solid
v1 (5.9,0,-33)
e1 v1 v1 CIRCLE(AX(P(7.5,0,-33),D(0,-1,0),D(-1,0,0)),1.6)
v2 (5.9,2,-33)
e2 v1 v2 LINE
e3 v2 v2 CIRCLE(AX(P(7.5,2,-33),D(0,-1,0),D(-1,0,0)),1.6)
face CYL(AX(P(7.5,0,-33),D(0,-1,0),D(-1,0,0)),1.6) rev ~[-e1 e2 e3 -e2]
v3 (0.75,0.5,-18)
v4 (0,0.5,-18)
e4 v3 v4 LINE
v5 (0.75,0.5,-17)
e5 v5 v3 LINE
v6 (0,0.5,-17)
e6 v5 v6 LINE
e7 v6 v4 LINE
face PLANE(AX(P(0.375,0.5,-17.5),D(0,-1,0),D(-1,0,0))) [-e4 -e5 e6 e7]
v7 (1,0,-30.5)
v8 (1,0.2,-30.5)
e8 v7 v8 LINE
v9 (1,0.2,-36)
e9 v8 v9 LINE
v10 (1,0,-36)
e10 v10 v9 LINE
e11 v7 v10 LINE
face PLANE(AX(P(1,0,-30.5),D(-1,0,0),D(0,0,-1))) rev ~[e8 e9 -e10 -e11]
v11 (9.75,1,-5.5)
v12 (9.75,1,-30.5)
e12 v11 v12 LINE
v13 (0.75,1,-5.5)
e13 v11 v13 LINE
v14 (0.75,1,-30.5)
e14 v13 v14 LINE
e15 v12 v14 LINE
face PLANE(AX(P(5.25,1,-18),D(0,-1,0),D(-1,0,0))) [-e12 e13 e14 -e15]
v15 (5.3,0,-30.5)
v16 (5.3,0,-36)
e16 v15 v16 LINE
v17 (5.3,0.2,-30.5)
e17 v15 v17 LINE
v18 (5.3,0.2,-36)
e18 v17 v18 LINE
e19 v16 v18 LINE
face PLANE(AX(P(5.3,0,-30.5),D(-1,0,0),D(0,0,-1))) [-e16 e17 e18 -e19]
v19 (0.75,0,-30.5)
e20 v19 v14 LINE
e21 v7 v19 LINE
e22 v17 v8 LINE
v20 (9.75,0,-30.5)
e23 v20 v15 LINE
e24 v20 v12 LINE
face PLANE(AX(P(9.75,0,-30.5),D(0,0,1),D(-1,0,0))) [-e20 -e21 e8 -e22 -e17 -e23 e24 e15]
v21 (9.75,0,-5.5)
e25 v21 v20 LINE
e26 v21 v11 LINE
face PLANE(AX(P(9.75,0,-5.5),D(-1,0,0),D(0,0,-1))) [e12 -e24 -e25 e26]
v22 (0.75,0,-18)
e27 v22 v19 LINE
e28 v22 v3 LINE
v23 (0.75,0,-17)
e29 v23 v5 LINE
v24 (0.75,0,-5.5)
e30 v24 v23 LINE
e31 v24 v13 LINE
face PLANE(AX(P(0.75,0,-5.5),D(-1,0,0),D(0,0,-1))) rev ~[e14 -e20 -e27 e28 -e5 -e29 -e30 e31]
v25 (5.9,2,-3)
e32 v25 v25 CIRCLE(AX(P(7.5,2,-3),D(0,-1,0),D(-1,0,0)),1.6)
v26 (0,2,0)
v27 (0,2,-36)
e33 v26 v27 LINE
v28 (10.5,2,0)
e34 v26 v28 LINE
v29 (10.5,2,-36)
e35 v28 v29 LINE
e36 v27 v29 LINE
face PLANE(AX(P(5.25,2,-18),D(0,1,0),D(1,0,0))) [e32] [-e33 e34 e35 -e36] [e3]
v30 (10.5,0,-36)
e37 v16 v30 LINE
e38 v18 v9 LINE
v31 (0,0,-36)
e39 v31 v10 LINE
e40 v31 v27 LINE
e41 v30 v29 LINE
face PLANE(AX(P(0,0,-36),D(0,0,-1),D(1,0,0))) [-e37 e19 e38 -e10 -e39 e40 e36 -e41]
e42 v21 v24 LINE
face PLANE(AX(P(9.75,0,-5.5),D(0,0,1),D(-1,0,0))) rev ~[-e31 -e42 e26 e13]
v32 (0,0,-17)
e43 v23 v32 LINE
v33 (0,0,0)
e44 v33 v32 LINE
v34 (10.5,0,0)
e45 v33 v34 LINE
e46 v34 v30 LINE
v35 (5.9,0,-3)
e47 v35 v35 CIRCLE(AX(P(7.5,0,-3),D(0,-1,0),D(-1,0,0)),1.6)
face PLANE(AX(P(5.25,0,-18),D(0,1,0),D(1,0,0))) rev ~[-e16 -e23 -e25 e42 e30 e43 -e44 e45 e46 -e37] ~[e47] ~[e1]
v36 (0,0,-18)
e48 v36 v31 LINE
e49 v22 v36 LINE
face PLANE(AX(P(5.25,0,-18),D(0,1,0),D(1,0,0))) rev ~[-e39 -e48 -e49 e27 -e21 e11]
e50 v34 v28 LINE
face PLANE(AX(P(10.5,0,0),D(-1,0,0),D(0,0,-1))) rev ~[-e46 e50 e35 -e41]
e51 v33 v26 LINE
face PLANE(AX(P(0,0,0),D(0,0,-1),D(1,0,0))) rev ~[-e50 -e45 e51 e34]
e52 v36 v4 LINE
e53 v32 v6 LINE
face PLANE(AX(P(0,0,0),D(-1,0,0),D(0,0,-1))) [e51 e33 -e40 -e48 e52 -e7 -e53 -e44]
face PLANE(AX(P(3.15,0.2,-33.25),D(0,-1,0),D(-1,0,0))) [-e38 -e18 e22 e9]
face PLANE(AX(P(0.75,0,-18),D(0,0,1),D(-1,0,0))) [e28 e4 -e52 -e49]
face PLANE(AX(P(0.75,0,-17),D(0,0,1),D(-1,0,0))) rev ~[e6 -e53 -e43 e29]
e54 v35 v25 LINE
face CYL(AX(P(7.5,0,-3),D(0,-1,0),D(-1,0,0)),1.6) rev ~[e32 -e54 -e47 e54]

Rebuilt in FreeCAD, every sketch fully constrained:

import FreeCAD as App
import Part
import Sketcher

V = App.Vector

doc = App.newDocument("Part")
body = doc.addObject("PartDesign::Body", "Body")

sketch1 = body.newObject("Sketcher::SketchObject", "Sketch")
sketch1.AttachmentSupport = (doc.getObject("XZ_Plane"), [""])
sketch1.MapMode = "FlatFace"
sketch1.addGeometry([
    Part.LineSegment(V(0, -36, 0), V(0, 0, 0)),
    Part.LineSegment(V(0, 0, 0), V(10, 0, 0)),
    Part.LineSegment(V(10, 0, 0), V(10, -36, 0)),
    Part.LineSegment(V(10, -36, 0), V(0, -36, 0)),
], False)
sketch1.addConstraint([
    Sketcher.Constraint("Coincident", 0, 2, 1, 1),
    Sketcher.Constraint("Coincident", 1, 2, 2, 1),
    Sketcher.Constraint("Coincident", 2, 2, 3, 1),
    Sketcher.Constraint("Coincident", 3, 2, 0, 1),
    Sketcher.Constraint("Vertical", 0),
    Sketcher.Constraint("Horizontal", 1),
    Sketcher.Constraint("Vertical", 2),
    Sketcher.Constraint("Horizontal", 3),
    Sketcher.Constraint("Coincident", 0, 2, -1, 1),
    Sketcher.Constraint("DistanceY", 0, 1, 0, 2, 36.0),
    Sketcher.Constraint("DistanceX", 1, 1, 1, 2, 10.5),
])
pad1 = body.newObject("PartDesign::Pad", "Pad")
pad1.Profile = sketch1
pad1.Length = 2
pad1.Reversed = True

sketch2 = body.newObject("Sketcher::SketchObject", "Sketch001")
sketch2.AttachmentSupport = (doc.getObject("XZ_Plane"), [""])
sketch2.MapMode = "FlatFace"
sketch2.addGeometry([
    Part.Circle(V(7.5, -33, 0), V(0, 0, 1), 1.6),
    Part.Circle(V(7.5, -3, 0), V(0, 0, 1), 1.6),
], False)
sketch2.addConstraint([
    Sketcher.Constraint("Equal", 0, 1),
    Sketcher.Constraint("Vertical", 0, 3, 1, 3),
    Sketcher.Constraint("Diameter", 0, 3.2),
    Sketcher.Constraint("DistanceY", 0, 3, -1, 1, 33.0),
    Sketcher.Constraint("DistanceY", 1, 3, -1, 1, 3.0),
    Sketcher.Constraint("DistanceX", -1, 1, 0, 3, 7.5),
])
pocket1 = body.newObject("PartDesign::Pocket", "Pocket")
pocket1.Profile = sketch2
pocket1.Type = "ThroughAll"

sketch3 = body.newObject("Sketcher::SketchObject", "Sketch002")
sketch3.AttachmentSupport = (doc.getObject("XZ_Plane"), [""])
sketch3.MapMode = "FlatFace"
sketch3.addGeometry([
    Part.LineSegment(V(10, -30, 0), V(10, -6, 0)),
    Part.LineSegment(V(10, -6, 0), V(1, -6, 0)),
    Part.LineSegment(V(1, -6, 0), V(1, -30, 0)),
    Part.LineSegment(V(1, -30, 0), V(10, -30, 0)),
], False)
sketch3.addConstraint([
    Sketcher.Constraint("Coincident", 0, 2, 1, 1),
    Sketcher.Constraint("Coincident", 1, 2, 2, 1),
    Sketcher.Constraint("Coincident", 2, 2, 3, 1),
    Sketcher.Constraint("Coincident", 3, 2, 0, 1),
    Sketcher.Constraint("Vertical", 0),
    Sketcher.Constraint("Horizontal", 1),
    Sketcher.Constraint("Vertical", 2),
    Sketcher.Constraint("Horizontal", 3),
    Sketcher.Constraint("DistanceX", 1, 2, 1, 1, 9.0),
    Sketcher.Constraint("DistanceY", 0, 1, 0, 2, 25.0),
    Sketcher.Constraint("DistanceY", 0, 2, -1, 1, 5.5),
    Sketcher.Constraint("DistanceX", -1, 1, 0, 2, 9.75),
])
pocket2 = body.newObject("PartDesign::Pocket", "Pocket001")
pocket2.Profile = sketch3
pocket2.Length = 1

sketch4 = body.newObject("Sketcher::SketchObject", "Sketch003")
sketch4.AttachmentSupport = (doc.getObject("XZ_Plane"), [""])
sketch4.MapMode = "FlatFace"
sketch4.addGeometry([
    Part.LineSegment(V(0.8, -18, 0), V(0.8, -17, 0)),
    Part.LineSegment(V(0.8, -17, 0), V(0, -17, 0)),
    Part.LineSegment(V(0, -17, 0), V(0, -18, 0)),
    Part.LineSegment(V(0, -18, 0), V(0.8, -18, 0)),
], False)
sketch4.addConstraint([
    Sketcher.Constraint("Coincident", 0, 2, 1, 1),
    Sketcher.Constraint("Coincident", 1, 2, 2, 1),
    Sketcher.Constraint("Coincident", 2, 2, 3, 1),
    Sketcher.Constraint("Coincident", 3, 2, 0, 1),
    Sketcher.Constraint("Vertical", 0),
    Sketcher.Constraint("Horizontal", 1),
    Sketcher.Constraint("Vertical", 2),
    Sketcher.Constraint("Horizontal", 3),
    Sketcher.Constraint("PointOnObject", 1, 2, -2),
    Sketcher.Constraint("DistanceY", 0, 1, 0, 2, 1.0),
    Sketcher.Constraint("DistanceY", 0, 2, -1, 1, 17.0),
    Sketcher.Constraint("DistanceX", 1, 2, 1, 1, 0.75),
])
pocket3 = body.newObject("PartDesign::Pocket", "Pocket002")
pocket3.Profile = sketch4
pocket3.Length = 0.5

sketch5 = body.newObject("Sketcher::SketchObject", "Sketch004")
sketch5.AttachmentSupport = (doc.getObject("XZ_Plane"), [""])
sketch5.MapMode = "FlatFace"
sketch5.addGeometry([
    Part.LineSegment(V(5.3, -36, 0), V(5.3, -30.5, 0)),
    Part.LineSegment(V(5.3, -30.5, 0), V(1, -30.5, 0)),
    Part.LineSegment(V(1, -30.5, 0), V(1, -36, 0)),
    Part.LineSegment(V(1, -36, 0), V(5.3, -36, 0)),
], False)
sketch5.addConstraint([
    Sketcher.Constraint("Coincident", 0, 2, 1, 1),
    Sketcher.Constraint("Coincident", 1, 2, 2, 1),
    Sketcher.Constraint("Coincident", 2, 2, 3, 1),
    Sketcher.Constraint("Coincident", 3, 2, 0, 1),
    Sketcher.Constraint("Vertical", 0),
    Sketcher.Constraint("Horizontal", 1),
    Sketcher.Constraint("Vertical", 2),
    Sketcher.Constraint("Horizontal", 3),
    Sketcher.Constraint("DistanceX", 1, 2, 1, 1, 4.3),
    Sketcher.Constraint("DistanceY", 0, 1, 0, 2, 5.5),
    Sketcher.Constraint("DistanceX", -1, 1, 1, 2, 1.0),
    Sketcher.Constraint("DistanceY", 2, 2, -1, 1, 36.0),
])
pocket4 = body.newObject("PartDesign::Pocket", "Pocket003")
pocket4.Profile = sketch5
pocket4.Length = 0.2

doc.recompute()
